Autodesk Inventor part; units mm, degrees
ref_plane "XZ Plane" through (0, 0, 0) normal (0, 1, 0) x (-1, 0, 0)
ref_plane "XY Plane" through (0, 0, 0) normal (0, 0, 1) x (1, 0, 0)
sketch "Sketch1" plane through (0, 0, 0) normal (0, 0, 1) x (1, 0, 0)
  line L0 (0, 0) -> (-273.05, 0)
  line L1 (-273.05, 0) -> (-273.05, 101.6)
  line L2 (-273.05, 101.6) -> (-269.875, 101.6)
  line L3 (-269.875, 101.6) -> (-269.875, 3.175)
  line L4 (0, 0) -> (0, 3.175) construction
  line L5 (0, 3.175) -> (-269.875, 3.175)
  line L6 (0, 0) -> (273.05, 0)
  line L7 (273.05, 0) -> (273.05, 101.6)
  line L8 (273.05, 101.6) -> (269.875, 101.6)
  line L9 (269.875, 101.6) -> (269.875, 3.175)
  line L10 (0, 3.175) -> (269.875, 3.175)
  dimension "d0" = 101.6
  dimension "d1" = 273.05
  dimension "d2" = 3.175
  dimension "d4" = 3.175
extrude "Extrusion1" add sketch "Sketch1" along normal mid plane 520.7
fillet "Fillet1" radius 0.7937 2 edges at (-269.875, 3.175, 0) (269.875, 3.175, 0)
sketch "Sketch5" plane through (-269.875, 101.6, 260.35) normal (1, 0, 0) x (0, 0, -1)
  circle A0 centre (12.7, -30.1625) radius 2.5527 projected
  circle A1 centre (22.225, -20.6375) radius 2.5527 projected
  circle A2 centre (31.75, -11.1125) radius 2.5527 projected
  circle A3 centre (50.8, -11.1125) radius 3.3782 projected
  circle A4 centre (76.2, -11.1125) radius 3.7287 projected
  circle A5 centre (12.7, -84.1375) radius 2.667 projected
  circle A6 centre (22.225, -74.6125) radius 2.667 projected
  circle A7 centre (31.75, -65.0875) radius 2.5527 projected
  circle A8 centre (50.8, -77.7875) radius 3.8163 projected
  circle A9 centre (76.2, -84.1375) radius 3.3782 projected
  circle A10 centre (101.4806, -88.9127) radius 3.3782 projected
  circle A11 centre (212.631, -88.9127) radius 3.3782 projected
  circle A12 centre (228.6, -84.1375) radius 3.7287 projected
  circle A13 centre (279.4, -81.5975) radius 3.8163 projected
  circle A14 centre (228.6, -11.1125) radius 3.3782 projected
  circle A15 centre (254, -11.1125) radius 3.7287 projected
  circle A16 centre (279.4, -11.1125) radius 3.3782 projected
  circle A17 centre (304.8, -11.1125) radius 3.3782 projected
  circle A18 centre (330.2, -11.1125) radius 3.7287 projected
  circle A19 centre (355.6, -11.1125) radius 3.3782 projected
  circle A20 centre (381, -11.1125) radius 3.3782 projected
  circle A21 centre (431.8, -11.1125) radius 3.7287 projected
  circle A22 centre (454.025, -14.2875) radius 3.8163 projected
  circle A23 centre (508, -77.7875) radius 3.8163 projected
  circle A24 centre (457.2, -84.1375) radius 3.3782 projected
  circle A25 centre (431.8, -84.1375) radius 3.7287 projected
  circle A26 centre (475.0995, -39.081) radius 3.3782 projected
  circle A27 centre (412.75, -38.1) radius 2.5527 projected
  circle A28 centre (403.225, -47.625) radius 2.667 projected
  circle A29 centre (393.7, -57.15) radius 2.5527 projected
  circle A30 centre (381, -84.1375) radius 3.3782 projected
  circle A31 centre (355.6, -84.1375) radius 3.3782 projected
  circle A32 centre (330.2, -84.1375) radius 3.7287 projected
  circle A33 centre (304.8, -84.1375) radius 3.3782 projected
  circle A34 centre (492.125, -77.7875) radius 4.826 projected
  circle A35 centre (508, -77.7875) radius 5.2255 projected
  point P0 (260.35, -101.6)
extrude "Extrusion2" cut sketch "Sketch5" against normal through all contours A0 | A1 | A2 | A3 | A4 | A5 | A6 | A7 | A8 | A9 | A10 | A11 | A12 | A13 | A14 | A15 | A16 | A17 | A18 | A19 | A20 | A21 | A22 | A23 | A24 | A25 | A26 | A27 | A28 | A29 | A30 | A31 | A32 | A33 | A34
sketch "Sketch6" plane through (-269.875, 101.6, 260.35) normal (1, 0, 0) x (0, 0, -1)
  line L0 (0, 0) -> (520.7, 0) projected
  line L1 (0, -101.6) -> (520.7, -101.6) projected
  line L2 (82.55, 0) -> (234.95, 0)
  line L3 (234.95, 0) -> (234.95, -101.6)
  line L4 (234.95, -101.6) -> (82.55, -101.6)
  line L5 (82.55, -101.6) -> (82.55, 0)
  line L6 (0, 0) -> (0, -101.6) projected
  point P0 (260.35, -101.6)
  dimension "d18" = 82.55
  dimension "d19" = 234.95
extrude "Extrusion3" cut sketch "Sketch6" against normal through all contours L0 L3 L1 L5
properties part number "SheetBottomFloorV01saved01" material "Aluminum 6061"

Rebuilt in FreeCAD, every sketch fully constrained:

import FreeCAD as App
import Part
import Sketcher

V = App.Vector
Q = App.Units.Quantity


def edges_at(feature, points):
    """Names of the edges that pass closest to the given points."""
    edges = feature.Shape.Edges
    near = lambda p: min(range(len(edges)), key=lambda i: edges[i].distToShape(Part.Vertex(*p))[0])
    return sorted({f"Edge{near(p) + 1}" for p in points})


def add_polygon(sketch, points):
    """Adds a closed chain of lines whose ends are joined by coincident constraints."""
    first, n = sketch.GeometryCount, len(points)
    for a, b in zip(points, points[1:] + points[:1]):
        sketch.addGeometry(Part.LineSegment(App.Vector(*a, 0), App.Vector(*b, 0)), False)
    for i in range(n):
        sketch.addConstraint(Sketcher.Constraint("Coincident", first + i, 2, first + (i + 1) % n, 1))

doc = App.newDocument("Part")
body = doc.addObject("PartDesign::Body", "Body")

# Sketch on XY plane
sketch1 = body.newObject("Sketcher::SketchObject", "Sketch")
sketch1.AttachmentSupport = (doc.getObject("XY_Plane"), [""])
sketch1.MapMode = "FlatFace"
add_polygon(sketch1, [(-273.1, 0), (273.1, 0), (273.1, 101.6), (269.9, 101.6), (269.9, 3.2), (-269.9, 3.2), (-269.9, 101.6), (-273.1, 101.6)])  # lines 0-7
sketch1.addConstraint(Sketcher.Constraint("Horizontal", 0))
sketch1.addConstraint(Sketcher.Constraint("Vertical", 1))
sketch1.addConstraint(Sketcher.Constraint("Horizontal", 2))
sketch1.addConstraint(Sketcher.Constraint("Vertical", 3))
sketch1.addConstraint(Sketcher.Constraint("Horizontal", 4))
sketch1.addConstraint(Sketcher.Constraint("Vertical", 5))
sketch1.addConstraint(Sketcher.Constraint("Horizontal", 6))
sketch1.addConstraint(Sketcher.Constraint("Vertical", 7))
sketch1.addConstraint(Sketcher.Constraint("Symmetric", 0, 2, 7, 2, -1, 1))
sketch1.addConstraint(Sketcher.Constraint("Symmetric", 2, 2, 5, 2, -2))
sketch1.addConstraint(Sketcher.Constraint("DistanceY", 1, 1, 1, 2, Q("4 in")))
sketch1.addConstraint(Sketcher.Constraint("DistanceX", 2, 2, 2, 1, Q("0.125 in")))
sketch1.addConstraint(Sketcher.Constraint("DistanceX", -1, 1, 0, 2, Q("10.75 in")))
sketch1.addConstraint(Sketcher.Constraint("DistanceY", -1, 1, 3, 2, Q("0.125 in")))
pad1 = body.newObject("PartDesign::Pad", "Pad")
pad1.Profile = sketch1
pad1.Length = Q("20.5 in")
pad1.Midplane = True
doc.recompute()

fillet = body.newObject("PartDesign::Fillet", "Fillet")
fillet.Base = (pad1, edges_at(pad1, [(-269.875, 3.175, 0), (269.875, 3.175, 0)]))
fillet.Radius = Q("0.031248 in")

# Sketch on YZ plane
sketch2 = body.newObject("Sketcher::SketchObject", "Sketch001")
sketch2.AttachmentSupport = (doc.getObject("YZ_Plane"), [""])
sketch2.MapMode = "FlatFace"
sketch2.AttachmentOffset = App.Placement(V(0, 0, -10.625 * 25.4), App.Rotation())
sketch2.addGeometry(Part.Circle(V(71.4, 247.7, 0), V(0, 0, 1), 2.6), False)
sketch2.addGeometry(Part.Circle(V(81, 238.1, 0), V(0, 0, 1), 2.6), False)
sketch2.addGeometry(Part.Circle(V(90.5, 228.6, 0), V(0, 0, 1), 2.6), False)
sketch2.addGeometry(Part.Circle(V(90.5, 209.6, 0), V(0, 0, 1), 3.4), False)
sketch2.addGeometry(Part.Circle(V(90.5, 184.2, 0), V(0, 0, 1), 3.7), False)
sketch2.addGeometry(Part.Circle(V(17.5, 247.7, 0), V(0, 0, 1), 2.7), False)
sketch2.addGeometry(Part.Circle(V(27, 238.1, 0), V(0, 0, 1), 2.7), False)
sketch2.addGeometry(Part.Circle(V(36.5, 228.6, 0), V(0, 0, 1), 2.6), False)
sketch2.addGeometry(Part.Circle(V(23.8, 209.6, 0), V(0, 0, 1), 3.8), False)
sketch2.addGeometry(Part.Circle(V(17.5, 184.2, 0), V(0, 0, 1), 3.4), False)
sketch2.addGeometry(Part.Circle(V(12.7, 158.9, 0), V(0, 0, 1), 3.4), False)
sketch2.addGeometry(Part.Circle(V(12.7, 47.7, 0), V(0, 0, 1), 3.4), False)
sketch2.addGeometry(Part.Circle(V(17.5, 31.8, 0), V(0, 0, 1), 3.7), False)
sketch2.addGeometry(Part.Circle(V(20, -19.1, 0), V(0, 0, 1), 3.8), False)
sketch2.addGeometry(Part.Circle(V(90.5, 31.8, 0), V(0, 0, 1), 3.4), False)
sketch2.addGeometry(Part.Circle(V(90.5, 6.3, 0), V(0, 0, 1), 3.7), False)
sketch2.addGeometry(Part.Circle(V(90.5, -19.1, 0), V(0, 0, 1), 3.4), False)
sketch2.addGeometry(Part.Circle(V(90.5, -44.5, 0), V(0, 0, 1), 3.4), False)
sketch2.addGeometry(Part.Circle(V(90.5, -69.8, 0), V(0, 0, 1), 3.7), False)
sketch2.addGeometry(Part.Circle(V(90.5, -95.2, 0), V(0, 0, 1), 3.4), False)
sketch2.addGeometry(Part.Circle(V(90.5, -120.7, 0), V(0, 0, 1), 3.4), False)
sketch2.addGeometry(Part.Circle(V(90.5, -171.4, 0), V(0, 0, 1), 3.7), False)
sketch2.addGeometry(Part.Circle(V(87.3, -193.7, 0), V(0, 0, 1), 3.8), False)
sketch2.addGeometry(Part.Circle(V(23.8, -247.7, 0), V(0, 0, 1), 3.8), False)
sketch2.addGeometry(Part.Circle(V(17.5, -196.8, 0), V(0, 0, 1), 3.4), False)
sketch2.addGeometry(Part.Circle(V(17.5, -171.4, 0), V(0, 0, 1), 3.7), False)
sketch2.addGeometry(Part.Circle(V(62.5, -214.7, 0), V(0, 0, 1), 3.4), False)
sketch2.addGeometry(Part.Circle(V(63.5, -152.4, 0), V(0, 0, 1), 2.6), False)
sketch2.addGeometry(Part.Circle(V(54, -142.9, 0), V(0, 0, 1), 2.7), False)
sketch2.addGeometry(Part.Circle(V(44.5, -133.3, 0), V(0, 0, 1), 2.6), False)
sketch2.addGeometry(Part.Circle(V(17.5, -120.7, 0), V(0, 0, 1), 3.4), False)
sketch2.addGeometry(Part.Circle(V(17.5, -95.2, 0), V(0, 0, 1), 3.4), False)
sketch2.addGeometry(Part.Circle(V(17.5, -69.8, 0), V(0, 0, 1), 3.7), False)
sketch2.addGeometry(Part.Circle(V(17.5, -44.5, 0), V(0, 0, 1), 3.4), False)
sketch2.addGeometry(Part.Circle(V(23.8, -231.8, 0), V(0, 0, 1), 4.8), False)
sketch2.addConstraint(Sketcher.Constraint("Equal", 0, 1))
sketch2.addConstraint(Sketcher.Constraint("Equal", 1, 2))
sketch2.addConstraint(Sketcher.Constraint("Equal", 5, 6))
sketch2.addConstraint(Sketcher.Constraint("Equal", 2, 7))
sketch2.addConstraint(Sketcher.Constraint("Equal", 3, 9))
sketch2.addConstraint(Sketcher.Constraint("Equal", 9, 10))
sketch2.addConstraint(Sketcher.Constraint("Equal", 10, 11))
sketch2.addConstraint(Sketcher.Constraint("Equal", 4, 12))
sketch2.addConstraint(Sketcher.Constraint("Equal", 8, 13))
sketch2.addConstraint(Sketcher.Constraint("Equal", 11, 14))
sketch2.addConstraint(Sketcher.Constraint("Equal", 12, 15))
sketch2.addConstraint(Sketcher.Constraint("Equal", 14, 16))
sketch2.addConstraint(Sketcher.Constraint("Equal", 16, 17))
sketch2.addConstraint(Sketcher.Constraint("Equal", 15, 18))
sketch2.addConstraint(Sketcher.Constraint("Equal", 17, 19))
sketch2.addConstraint(Sketcher.Constraint("Equal", 19, 20))
sketch2.addConstraint(Sketcher.Constraint("Equal", 18, 21))
sketch2.addConstraint(Sketcher.Constraint("Equal", 13, 22))
sketch2.addConstraint(Sketcher.Constraint("Equal", 22, 23))
sketch2.addConstraint(Sketcher.Constraint("Equal", 20, 24))
sketch2.addConstraint(Sketcher.Constraint("Equal", 21, 25))
sketch2.addConstraint(Sketcher.Constraint("Equal", 24, 26))
sketch2.addConstraint(Sketcher.Constraint("Equal", 7, 27))
sketch2.addConstraint(Sketcher.Constraint("Equal", 6, 28))
sketch2.addConstraint(Sketcher.Constraint("Equal", 27, 29))
sketch2.addConstraint(Sketcher.Constraint("Equal", 26, 30))
sketch2.addConstraint(Sketcher.Constraint("Equal", 30, 31))
sketch2.addConstraint(Sketcher.Constraint("Equal", 25, 32))
sketch2.addConstraint(Sketcher.Constraint("Equal", 31, 33))
sketch2.addConstraint(Sketcher.Constraint("Horizontal", 0, 3, 5, 3))
sketch2.addConstraint(Sketcher.Constraint("Horizontal", 1, 3, 6, 3))
sketch2.addConstraint(Sketcher.Constraint("Horizontal", 2, 3, 7, 3))
sketch2.addConstraint(Sketcher.Constraint("Horizontal", 3, 3, 8, 3))
sketch2.addConstraint(Sketcher.Constraint("Horizontal", 4, 3, 9, 3))
sketch2.addConstraint(Sketcher.Constraint("Horizontal", 12, 3, 14, 3))
sketch2.addConstraint(Sketcher.Constraint("Horizontal", 13, 3, 16, 3))
sketch2.addConstraint(Sketcher.Constraint("Horizontal", 21, 3, 25, 3))
sketch2.addConstraint(Sketcher.Constraint("Horizontal", 20, 3, 30, 3))
sketch2.addConstraint(Sketcher.Constraint("Horizontal", 19, 3, 31, 3))
sketch2.addConstraint(Sketcher.Constraint("Horizontal", 18, 3, 32, 3))
sketch2.addConstraint(Sketcher.Constraint("Horizontal", 17, 3, 33, 3))
sketch2.addConstraint(Sketcher.Constraint("Vertical", 2, 3, 3, 3))
sketch2.addConstraint(Sketcher.Constraint("Vertical", 3, 3, 4, 3))
sketch2.addConstraint(Sketcher.Constraint("Vertical", 5, 3, 9, 3))
sketch2.addConstraint(Sketcher.Constraint("Vertical", 10, 3, 11, 3))
sketch2.addConstraint(Sketcher.Constraint("Vertical", 9, 3, 12, 3))
sketch2.addConstraint(Sketcher.Constraint("Vertical", 4, 3, 14, 3))
sketch2.addConstraint(Sketcher.Constraint("Vertical", 14, 3, 15, 3))
sketch2.addConstraint(Sketcher.Constraint("Vertical", 15, 3, 16, 3))
sketch2.addConstraint(Sketcher.Constraint("Vertical", 16, 3, 17, 3))
sketch2.addConstraint(Sketcher.Constraint("Vertical", 17, 3, 18, 3))
sketch2.addConstraint(Sketcher.Constraint("Vertical", 18, 3, 19, 3))
sketch2.addConstraint(Sketcher.Constraint("Vertical", 19, 3, 20, 3))
sketch2.addConstraint(Sketcher.Constraint("Vertical", 20, 3, 21, 3))
sketch2.addConstraint(Sketcher.Constraint("Vertical", 8, 3, 23, 3))
sketch2.addConstraint(Sketcher.Constraint("Vertical", 12, 3, 24, 3))
sketch2.addConstraint(Sketcher.Constraint("Vertical", 24, 3, 25, 3))
sketch2.addConstraint(Sketcher.Constraint("Vertical", 25, 3, 30, 3))
sketch2.addConstraint(Sketcher.Constraint("Vertical", 30, 3, 31, 3))
sketch2.addConstraint(Sketcher.Constraint("Vertical", 31, 3, 32, 3))
sketch2.addConstraint(Sketcher.Constraint("Vertical", 32, 3, 33, 3))
sketch2.addConstraint(Sketcher.Constraint("Vertical", 23, 3, 34, 3))
sketch2.addConstraint(Sketcher.Constraint("Diameter", 5, Q("0.21 in")))
sketch2.addConstraint(Sketcher.Constraint("Diameter", 34, Q("0.38 in")))
sketch2.addConstraint(Sketcher.Constraint("Diameter", 0, Q("0.201 in")))
sketch2.addConstraint(Sketcher.Constraint("Diameter", 3, Q("0.266 in")))
sketch2.addConstraint(Sketcher.Constraint("DistanceY", -1, 1, 2, 3, Q("9 in")))
sketch2.addConstraint(Sketcher.Constraint("DistanceY", 27, 3, -1, 1, Q("6 in")))
sketch2.addConstraint(Sketcher.Constraint("DistanceY", 4, 3, 3, 3, Q("1 in")))
sketch2.addConstraint(Sketcher.Constraint("DistanceY", 12, 3, 9, 3, Q("6 in")))
sketch2.addConstraint(Sketcher.Constraint("DistanceY", 13, 3, 12, 3, Q("2 in")))
sketch2.addConstraint(Sketcher.Constraint("DistanceY", 15, 3, 14, 3, Q("1 in")))
sketch2.addConstraint(Sketcher.Constraint("DistanceY", 17, 3, 16, 3, Q("1 in")))
sketch2.addConstraint(Sketcher.Constraint("DistanceY", 18, 3, 17, 3, Q("1 in")))
sketch2.addConstraint(Sketcher.Constraint("DistanceY", 19, 3, 18, 3, Q("1 in")))
sketch2.addConstraint(Sketcher.Constraint("DistanceY", 20, 3, 19, 3, Q("1 in")))
sketch2.addConstraint(Sketcher.Constraint("DistanceY", 21, 3, 20, 3, Q("2 in")))
sketch2.addConstraint(Sketcher.Constraint("DistanceY", 23, 3, 21, 3, Q("3 in")))
sketch2.addConstraint(Sketcher.Constraint("DistanceY", 23, 3, 24, 3, Q("2 in")))
sketch2.addConstraint(Sketcher.Constraint("Diameter", 4, Q("0.2936 in")))
sketch2.addConstraint(Sketcher.Constraint("Diameter", 8, Q("0.3005 in")))
sketch2.addConstraint(Sketcher.Constraint("DistanceX", -1, 1, 27, 3, Q("2.5 in")))
sketch2.addConstraint(Sketcher.Constraint("DistanceY", 3, 3, 0, 3, Q("1.5 in")))
sketch2.addConstraint(Sketcher.Constraint("DistanceX", 5, 3, 1, 3, Q("2.5 in")))
sketch2.addConstraint(Sketcher.Constraint("DistanceX", 6, 3, 2, 3, Q("2.5 in")))
sketch2.addConstraint(Sketcher.Constraint("DistanceX", 8, 3, 7, 3, Q("0.5 in")))
sketch2.addConstraint(Sketcher.Constraint("DistanceX", 12, 3, 13, 3, Q("0.1 in")))
sketch2.addConstraint(Sketcher.Constraint("DistanceX", 23, 3, 22, 3, Q("2.5 in")))
sketch2.addConstraint(Sketcher.Constraint("DistanceY", 25, 3, 29, 3, Q("1.5 in")))
sketch2.addConstraint(Sketcher.Constraint("DistanceY", 34, 3, 22, 3, Q("1.5 in")))
sketch2.addConstraint(Sketcher.Constraint("DistanceY", -1, 1, 0, 3, Q("9.75 in")))
sketch2.addConstraint(Sketcher.Constraint("DistanceX", -1, 1, 29, 3, Q("1.75 in")))
sketch2.addConstraint(Sketcher.Constraint("DistanceX", 0, 3, 2, 3, Q("0.75 in")))
sketch2.addConstraint(Sketcher.Constraint("DistanceX", 5, 3, 7, 3, Q("0.75 in")))
sketch2.addConstraint(Sketcher.Constraint("DistanceX", -1, 1, 0, 3, Q("2.8125 in")))
sketch2.addConstraint(Sketcher.Constraint("DistanceX", -1, 1, 1, 3, Q("3.1875 in")))
sketch2.addConstraint(Sketcher.Constraint("DistanceY", -1, 1, 1, 3, Q("9.375 in")))
sketch2.addConstraint(Sketcher.Constraint("DistanceY", 22, 3, -1, 1, Q("7.625 in")))
sketch2.addConstraint(Sketcher.Constraint("DistanceX", -1, 1, 28, 3, Q("2.125 in")))
sketch2.addConstraint(Sketcher.Constraint("DistanceY", 28, 3, -1, 1, Q("5.625 in")))
sketch2.addConstraint(Sketcher.Constraint("DistanceX", 10, 3, 9, 3, Q("0.188 in")))
sketch2.addConstraint(Sketcher.Constraint("DistanceY", 11, 3, 10, 3, Q("4.376 in")))
sketch2.addConstraint(Sketcher.Constraint("DistanceY", -1, 1, 10, 3, Q("6.2547 in")))
sketch2.addConstraint(Sketcher.Constraint("DistanceY", 26, 3, -1, 1, Q("8.4547 in")))
sketch2.addConstraint(Sketcher.Constraint("DistanceX", -1, 1, 26, 3, 62.519))
pocket1 = body.newObject("PartDesign::Pocket", "Pocket")
pocket1.Profile = sketch2
pocket1.Type = "ThroughAll"

# Sketch on YZ plane
sketch3 = body.newObject("Sketcher::SketchObject", "Sketch002")
sketch3.AttachmentSupport = (doc.getObject("YZ_Plane"), [""])
sketch3.MapMode = "FlatFace"
sketch3.AttachmentOffset = App.Placement(V(0, 0, -10.625 * 25.4), App.Rotation())
add_polygon(sketch3, [(102, 25), (102, 178), (0, 178), (0, 25)])  # lines 0-3
sketch3.addConstraint(Sketcher.Constraint("Vertical", 0))
sketch3.addConstraint(Sketcher.Constraint("Horizontal", 1))
sketch3.addConstraint(Sketcher.Constraint("Vertical", 2))
sketch3.addConstraint(Sketcher.Constraint("Horizontal", 3))
sketch3.addConstraint(Sketcher.Constraint("PointOnObject", 1, 2, -2))
sketch3.addConstraint(Sketcher.Constraint("DistanceX", 1, 2, 1, 1, Q("4 in")))
sketch3.addConstraint(Sketcher.Constraint("DistanceY", 0, 1, 0, 2, Q("6 in")))
sketch3.addConstraint(Sketcher.Constraint("DistanceY", -1, 1, 0, 2, Q("7 in")))
pocket2 = body.newObject("PartDesign::Pocket", "Pocket001")
pocket2.Profile = sketch3
pocket2.Type = "ThroughAll"

doc.recompute()
